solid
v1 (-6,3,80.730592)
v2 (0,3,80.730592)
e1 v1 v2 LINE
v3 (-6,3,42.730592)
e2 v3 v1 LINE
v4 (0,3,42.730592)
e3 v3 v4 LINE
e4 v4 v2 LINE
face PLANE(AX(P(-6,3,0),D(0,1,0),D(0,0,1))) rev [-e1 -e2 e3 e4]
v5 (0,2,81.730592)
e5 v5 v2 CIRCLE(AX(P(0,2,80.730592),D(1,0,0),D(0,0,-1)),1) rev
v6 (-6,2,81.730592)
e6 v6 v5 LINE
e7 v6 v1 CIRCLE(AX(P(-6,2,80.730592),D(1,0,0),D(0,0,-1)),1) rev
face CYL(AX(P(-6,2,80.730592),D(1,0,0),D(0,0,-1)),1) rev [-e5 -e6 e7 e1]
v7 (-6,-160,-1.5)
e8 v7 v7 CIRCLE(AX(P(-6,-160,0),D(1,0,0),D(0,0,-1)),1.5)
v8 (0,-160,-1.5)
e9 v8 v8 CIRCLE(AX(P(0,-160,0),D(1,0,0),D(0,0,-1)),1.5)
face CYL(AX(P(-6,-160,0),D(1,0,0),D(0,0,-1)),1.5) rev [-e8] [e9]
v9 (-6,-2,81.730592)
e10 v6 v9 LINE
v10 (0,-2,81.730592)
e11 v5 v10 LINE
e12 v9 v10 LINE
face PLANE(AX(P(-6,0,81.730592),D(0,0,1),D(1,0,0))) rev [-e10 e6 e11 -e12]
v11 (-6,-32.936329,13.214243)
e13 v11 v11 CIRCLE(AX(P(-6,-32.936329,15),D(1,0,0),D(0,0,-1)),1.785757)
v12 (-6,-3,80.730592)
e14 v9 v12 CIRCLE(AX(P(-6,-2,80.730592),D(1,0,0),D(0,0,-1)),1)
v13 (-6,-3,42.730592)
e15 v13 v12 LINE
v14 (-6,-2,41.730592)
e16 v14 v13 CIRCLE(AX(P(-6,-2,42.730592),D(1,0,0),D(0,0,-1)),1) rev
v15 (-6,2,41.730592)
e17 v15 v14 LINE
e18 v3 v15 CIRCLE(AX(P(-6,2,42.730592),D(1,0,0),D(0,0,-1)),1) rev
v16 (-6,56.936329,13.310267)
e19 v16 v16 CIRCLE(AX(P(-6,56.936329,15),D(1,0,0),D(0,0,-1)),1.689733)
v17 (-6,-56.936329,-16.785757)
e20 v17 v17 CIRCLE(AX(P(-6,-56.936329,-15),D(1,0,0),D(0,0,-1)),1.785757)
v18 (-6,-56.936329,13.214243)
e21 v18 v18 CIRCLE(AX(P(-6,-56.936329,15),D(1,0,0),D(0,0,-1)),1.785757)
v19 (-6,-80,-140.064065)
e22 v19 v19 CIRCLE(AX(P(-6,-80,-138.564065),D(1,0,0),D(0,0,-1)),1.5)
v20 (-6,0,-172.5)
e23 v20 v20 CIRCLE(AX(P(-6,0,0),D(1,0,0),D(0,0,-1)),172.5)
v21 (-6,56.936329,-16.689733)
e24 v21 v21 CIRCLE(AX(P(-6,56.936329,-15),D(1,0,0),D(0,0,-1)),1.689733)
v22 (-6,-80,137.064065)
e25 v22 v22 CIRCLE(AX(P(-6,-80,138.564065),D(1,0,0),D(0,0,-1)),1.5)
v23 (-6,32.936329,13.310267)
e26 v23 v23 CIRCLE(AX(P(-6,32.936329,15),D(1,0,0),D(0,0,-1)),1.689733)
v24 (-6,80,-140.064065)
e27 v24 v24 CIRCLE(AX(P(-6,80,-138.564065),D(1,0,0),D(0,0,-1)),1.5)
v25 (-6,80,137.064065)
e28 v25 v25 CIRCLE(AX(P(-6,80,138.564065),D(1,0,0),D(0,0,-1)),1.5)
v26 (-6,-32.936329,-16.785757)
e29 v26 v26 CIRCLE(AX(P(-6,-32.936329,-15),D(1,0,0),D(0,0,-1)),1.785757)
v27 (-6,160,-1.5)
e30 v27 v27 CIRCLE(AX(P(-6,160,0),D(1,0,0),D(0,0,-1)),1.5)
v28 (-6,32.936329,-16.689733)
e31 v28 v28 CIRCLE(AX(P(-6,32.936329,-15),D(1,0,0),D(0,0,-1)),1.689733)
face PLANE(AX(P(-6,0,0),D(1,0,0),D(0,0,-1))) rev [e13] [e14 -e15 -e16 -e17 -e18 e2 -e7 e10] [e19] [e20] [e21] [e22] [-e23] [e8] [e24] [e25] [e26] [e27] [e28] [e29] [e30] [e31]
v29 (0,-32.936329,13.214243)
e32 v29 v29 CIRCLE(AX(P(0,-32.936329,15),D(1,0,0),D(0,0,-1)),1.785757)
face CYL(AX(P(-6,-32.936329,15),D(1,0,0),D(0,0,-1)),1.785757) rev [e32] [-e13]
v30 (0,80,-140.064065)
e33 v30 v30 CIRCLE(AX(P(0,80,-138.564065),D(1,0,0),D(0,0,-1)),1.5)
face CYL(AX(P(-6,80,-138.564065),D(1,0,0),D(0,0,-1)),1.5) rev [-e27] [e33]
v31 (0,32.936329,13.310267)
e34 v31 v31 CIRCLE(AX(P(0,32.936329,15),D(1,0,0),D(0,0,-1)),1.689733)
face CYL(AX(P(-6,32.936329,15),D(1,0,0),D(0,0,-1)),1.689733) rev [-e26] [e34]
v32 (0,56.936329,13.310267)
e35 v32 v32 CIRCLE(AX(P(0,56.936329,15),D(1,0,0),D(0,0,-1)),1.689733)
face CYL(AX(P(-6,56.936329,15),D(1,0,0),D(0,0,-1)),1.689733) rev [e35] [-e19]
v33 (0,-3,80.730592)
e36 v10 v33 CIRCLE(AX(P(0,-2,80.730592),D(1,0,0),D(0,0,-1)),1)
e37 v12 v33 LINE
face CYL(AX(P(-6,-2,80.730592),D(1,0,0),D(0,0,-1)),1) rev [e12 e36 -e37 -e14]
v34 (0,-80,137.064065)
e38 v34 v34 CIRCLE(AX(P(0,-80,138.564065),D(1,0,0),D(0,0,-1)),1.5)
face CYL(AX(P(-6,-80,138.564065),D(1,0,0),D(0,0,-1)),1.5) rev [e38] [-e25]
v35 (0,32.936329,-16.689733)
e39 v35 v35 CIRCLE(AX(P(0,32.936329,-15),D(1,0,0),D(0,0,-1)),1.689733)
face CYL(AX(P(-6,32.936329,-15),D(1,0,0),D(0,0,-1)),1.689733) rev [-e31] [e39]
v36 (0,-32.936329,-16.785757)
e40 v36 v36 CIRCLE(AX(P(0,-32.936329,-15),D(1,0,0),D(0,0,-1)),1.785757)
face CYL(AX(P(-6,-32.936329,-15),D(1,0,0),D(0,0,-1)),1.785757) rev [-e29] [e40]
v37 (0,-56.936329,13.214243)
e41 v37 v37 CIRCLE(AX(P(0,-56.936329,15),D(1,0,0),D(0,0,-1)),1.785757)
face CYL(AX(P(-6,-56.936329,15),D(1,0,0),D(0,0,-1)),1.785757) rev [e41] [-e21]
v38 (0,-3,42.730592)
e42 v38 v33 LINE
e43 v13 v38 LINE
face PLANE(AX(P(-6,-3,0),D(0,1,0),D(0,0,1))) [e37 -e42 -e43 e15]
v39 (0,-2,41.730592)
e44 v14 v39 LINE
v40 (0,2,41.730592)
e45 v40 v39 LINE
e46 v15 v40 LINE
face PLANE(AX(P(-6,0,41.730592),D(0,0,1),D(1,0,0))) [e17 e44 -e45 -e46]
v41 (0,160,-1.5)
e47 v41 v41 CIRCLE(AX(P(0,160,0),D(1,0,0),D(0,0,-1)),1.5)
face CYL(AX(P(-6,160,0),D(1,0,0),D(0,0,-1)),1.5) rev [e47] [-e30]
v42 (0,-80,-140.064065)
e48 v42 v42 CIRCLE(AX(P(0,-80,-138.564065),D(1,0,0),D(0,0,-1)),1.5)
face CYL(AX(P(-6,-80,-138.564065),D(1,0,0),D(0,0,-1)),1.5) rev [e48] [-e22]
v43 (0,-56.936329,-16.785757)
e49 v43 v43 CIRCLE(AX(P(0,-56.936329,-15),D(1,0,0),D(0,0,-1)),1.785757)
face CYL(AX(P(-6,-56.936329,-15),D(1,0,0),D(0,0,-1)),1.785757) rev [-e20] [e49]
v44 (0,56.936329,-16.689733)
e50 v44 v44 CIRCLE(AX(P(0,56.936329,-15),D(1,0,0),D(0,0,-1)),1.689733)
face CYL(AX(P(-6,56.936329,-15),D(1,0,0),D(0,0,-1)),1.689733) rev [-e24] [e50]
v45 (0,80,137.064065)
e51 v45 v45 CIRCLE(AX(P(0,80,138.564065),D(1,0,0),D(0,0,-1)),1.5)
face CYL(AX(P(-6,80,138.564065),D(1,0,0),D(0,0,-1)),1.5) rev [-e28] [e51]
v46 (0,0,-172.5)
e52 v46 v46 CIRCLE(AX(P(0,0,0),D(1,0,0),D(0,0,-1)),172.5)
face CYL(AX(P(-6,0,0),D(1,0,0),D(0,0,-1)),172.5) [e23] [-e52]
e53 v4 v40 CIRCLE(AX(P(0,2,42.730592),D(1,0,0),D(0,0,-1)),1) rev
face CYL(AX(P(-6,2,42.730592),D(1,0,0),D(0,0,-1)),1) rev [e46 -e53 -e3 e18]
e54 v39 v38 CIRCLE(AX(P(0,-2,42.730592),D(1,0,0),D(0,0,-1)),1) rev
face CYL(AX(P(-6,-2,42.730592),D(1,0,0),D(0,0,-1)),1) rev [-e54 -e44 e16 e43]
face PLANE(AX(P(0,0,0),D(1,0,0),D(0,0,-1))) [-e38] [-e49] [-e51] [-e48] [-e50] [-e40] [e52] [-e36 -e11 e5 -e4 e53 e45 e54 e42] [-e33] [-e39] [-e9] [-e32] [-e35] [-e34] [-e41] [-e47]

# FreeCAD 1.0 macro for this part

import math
import FreeCAD as App
import Part
import Sketcher

doc = App.newDocument("Part")
body = doc.addObject("PartDesign::Body", "Body")

# Sketch on YZ plane
sketch1 = body.newObject("Sketcher::SketchObject", "Sketch")
sketch1.AttachmentSupport = (doc.getObject("YZ_Plane"), [""])
sketch1.MapMode = "FlatFace"
sketch1.addGeometry([
    Part.Circle(App.Vector(0, 0, 0), App.Vector(0, 0, 1), 172.5),  # 0
    Part.LineSegment(App.Vector(-2, 81.7, 0), App.Vector(2, 81.7, 0)),  # 1
    Part.ArcOfCircle(Part.Circle(App.Vector(2, 80.7, 0), App.Vector(0, 0, 1), 1), math.radians(0), math.radians(90)),  # 2
    Part.LineSegment(App.Vector(3, 80.7, 0), App.Vector(3, 42.7, 0)),  # 3
    Part.ArcOfCircle(Part.Circle(App.Vector(2, 42.7, 0), App.Vector(0, 0, 1), 1), math.radians(-90), math.radians(0)),  # 4
    Part.LineSegment(App.Vector(2, 41.7, 0), App.Vector(-2, 41.7, 0)),  # 5
    Part.ArcOfCircle(Part.Circle(App.Vector(-2, 42.7, 0), App.Vector(0, 0, 1), 1), math.radians(-180), math.radians(-90)),  # 6
    Part.LineSegment(App.Vector(-3, 42.7, 0), App.Vector(-3, 80.7, 0)),  # 7
    Part.ArcOfCircle(Part.Circle(App.Vector(-2, 80.7, 0), App.Vector(0, 0, 1), 1), math.radians(90), math.radians(180)),  # 8
    Part.Circle(App.Vector(-160, 0, 0), App.Vector(0, 0, 1), 1.5),  # 9
    Part.Circle(App.Vector(-80, 138.6, 0), App.Vector(0, 0, 1), 1.5),  # 10
    Part.Circle(App.Vector(-56.9, 15, 0), App.Vector(0, 0, 1), 1.8),  # 11
    Part.Circle(App.Vector(-32.9, 15, 0), App.Vector(0, 0, 1), 1.8),  # 12
    Part.Circle(App.Vector(-80, -138.6, 0), App.Vector(0, 0, 1), 1.5),  # 13
    Part.Circle(App.Vector(-56.9, -15, 0), App.Vector(0, 0, 1), 1.8),  # 14
    Part.Circle(App.Vector(-32.9, -15, 0), App.Vector(0, 0, 1), 1.8),  # 15
    Part.Circle(App.Vector(80, -138.6, 0), App.Vector(0, 0, 1), 1.5),  # 16
    Part.Circle(App.Vector(160, 0, 0), App.Vector(0, 0, 1), 1.5),  # 17
    Part.Circle(App.Vector(32.9, 15, 0), App.Vector(0, 0, 1), 1.7),  # 18
    Part.Circle(App.Vector(56.9, 15, 0), App.Vector(0, 0, 1), 1.7),  # 19
    Part.Circle(App.Vector(80, 138.6, 0), App.Vector(0, 0, 1), 1.5),  # 20
    Part.Circle(App.Vector(32.9, -15, 0), App.Vector(0, 0, 1), 1.7),  # 21
    Part.Circle(App.Vector(56.9, -15, 0), App.Vector(0, 0, 1), 1.7),  # 22
], False)
sketch1.addConstraint([
    Sketcher.Constraint("Tangent", 1, 2, 2, 2),
    Sketcher.Constraint("Tangent", 2, 1, 3, 1),
    Sketcher.Constraint("Tangent", 3, 2, 4, 2),
    Sketcher.Constraint("Tangent", 4, 1, 5, 1),
    Sketcher.Constraint("Tangent", 5, 2, 6, 2),
    Sketcher.Constraint("Tangent", 6, 1, 7, 1),
    Sketcher.Constraint("Tangent", 7, 2, 8, 2),
    Sketcher.Constraint("Tangent", 8, 1, 1, 1),
    Sketcher.Constraint("Horizontal", 1),
    Sketcher.Constraint("Vertical", 3),
    Sketcher.Constraint("Horizontal", 5),
    Sketcher.Constraint("Vertical", 7),
    Sketcher.Constraint("Coincident", 0, 3, -1, 1),
    Sketcher.Constraint("Equal", 2, 4),
    Sketcher.Constraint("Equal", 4, 6),
    Sketcher.Constraint("Equal", 6, 8),
    Sketcher.Constraint("Equal", 9, 10),
    Sketcher.Constraint("Equal", 11, 12),
    Sketcher.Constraint("Equal", 10, 13),
    Sketcher.Constraint("Equal", 12, 14),
    Sketcher.Constraint("Equal", 14, 15),
    Sketcher.Constraint("Equal", 13, 16),
    Sketcher.Constraint("Equal", 16, 17),
    Sketcher.Constraint("Equal", 18, 19),
    Sketcher.Constraint("Equal", 17, 20),
    Sketcher.Constraint("Equal", 19, 21),
    Sketcher.Constraint("Equal", 21, 22),
    Sketcher.Constraint("Symmetric", 10, 3, 16, 3, -1, 1),
    Sketcher.Constraint("Symmetric", 9, 3, 17, 3, -1, 1),
    Sketcher.Constraint("Symmetric", 15, 3, 18, 3, -1, 1),
    Sketcher.Constraint("Symmetric", 14, 3, 19, 3, -1, 1),
    Sketcher.Constraint("Symmetric", 13, 3, 20, 3, -1, 1),
    Sketcher.Constraint("Symmetric", 12, 3, 21, 3, -1, 1),
    Sketcher.Constraint("Symmetric", 11, 3, 22, 3, -1, 1),
    Sketcher.Constraint("Symmetric", 13, 3, 16, 3, -2),
    Sketcher.Constraint("Symmetric", 12, 3, 18, 3, -2),
    Sketcher.Constraint("Symmetric", 11, 3, 19, 3, -2),
    Sketcher.Constraint("PointOnObject", 9, 3, -1),
    Sketcher.Constraint("Horizontal", 11, 3, 12, 3),
    Sketcher.Constraint("Diameter", 0, 345.0),
    Sketcher.Constraint("Diameter", 9, 3.0),
    Sketcher.Constraint("Radius", 2, 1.0),
    Sketcher.Constraint("DistanceX", 1, 1, 1, 2, 4.0),
    Sketcher.Constraint("DistanceY", 3, 2, 3, 1, 38.0),
    Sketcher.Constraint("DistanceX", -1, 1, 2, 3, 2.0),
    Sketcher.Constraint("DistanceX", 9, 3, -1, 1, 160.0),
    Sketcher.Constraint("DistanceX", 10, 3, -1, 1, 80.0),
    Sketcher.Constraint("DistanceY", -1, 1, 11, 3, 15.0),
    Sketcher.Constraint("DistanceX", 11, 3, 12, 3, 24.0),
    Sketcher.Constraint("Diameter", 11, 3.571513),
    Sketcher.Constraint("Diameter", 18, 3.379465),
    Sketcher.Constraint("DistanceY", -1, 1, 2, 3, 80.730592),
    Sketcher.Constraint("DistanceX", 11, 3, -1, 1, 56.936329),
    Sketcher.Constraint("DistanceY", -1, 1, 10, 3, 138.564065),
])
pad1 = body.newObject("PartDesign::Pad", "Pad")
pad1.Profile = sketch1
pad1.Length = 6
pad1.Reversed = True

doc.recompute()
